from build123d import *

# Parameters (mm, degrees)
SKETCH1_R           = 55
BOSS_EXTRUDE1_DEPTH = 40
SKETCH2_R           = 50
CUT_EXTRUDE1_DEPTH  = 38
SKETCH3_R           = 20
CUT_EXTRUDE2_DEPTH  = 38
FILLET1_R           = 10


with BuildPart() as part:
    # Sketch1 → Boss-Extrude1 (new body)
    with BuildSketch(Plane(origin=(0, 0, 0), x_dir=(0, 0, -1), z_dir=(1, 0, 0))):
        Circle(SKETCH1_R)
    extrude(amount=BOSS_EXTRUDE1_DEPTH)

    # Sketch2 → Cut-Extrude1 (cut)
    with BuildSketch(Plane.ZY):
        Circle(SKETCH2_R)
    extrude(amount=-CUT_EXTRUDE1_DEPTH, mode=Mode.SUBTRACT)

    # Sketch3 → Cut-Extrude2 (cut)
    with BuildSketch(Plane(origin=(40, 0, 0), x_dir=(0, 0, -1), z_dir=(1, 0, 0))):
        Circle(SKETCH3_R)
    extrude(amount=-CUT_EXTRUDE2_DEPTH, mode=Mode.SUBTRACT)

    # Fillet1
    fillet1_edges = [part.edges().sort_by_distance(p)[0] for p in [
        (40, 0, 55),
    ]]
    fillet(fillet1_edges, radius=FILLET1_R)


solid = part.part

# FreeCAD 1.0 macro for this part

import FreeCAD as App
import Part
import Sketcher

V = App.Vector


def edges_at(feature, points):
    """Names of the edges that pass closest to the given points."""
    edges = feature.Shape.Edges
    near = lambda p: min(range(len(edges)), key=lambda i: edges[i].distToShape(Part.Vertex(*p))[0])
    return sorted({f"Edge{near(p) + 1}" for p in points})

doc = App.newDocument("Part")
body = doc.addObject("PartDesign::Body", "Body")

# Sketch on YZ plane
sketch1 = doc.addObject("Sketcher::SketchObject", "Sketch")
body.addObject(sketch1)
sketch1.AttachmentSupport = (doc.YZ_Plane, [""])
sketch1.MapMode = "FlatFace"
sketch1.addGeometry(Part.Circle(V(0, 0, 0), V(0, 0, 1), 55), False)
sketch1.addConstraint([
    Sketcher.Constraint("Coincident", 0, 3, -1, 1),
    Sketcher.Constraint("Diameter", 0, 110.0),
])
pad1 = doc.addObject("PartDesign::Pad", "Pad")
body.addObject(pad1)
pad1.Profile = sketch1
pad1.Length = 40

# Sketch on YZ plane
sketch2 = doc.addObject("Sketcher::SketchObject", "Sketch001")
body.addObject(sketch2)
sketch2.AttachmentSupport = (doc.YZ_Plane, [""])
sketch2.MapMode = "FlatFace"
sketch2.addGeometry(Part.Circle(V(0, 0, 0), V(0, 0, 1), 50), False)
sketch2.addConstraint([
    Sketcher.Constraint("Coincident", 0, 3, -1, 1),
    Sketcher.Constraint("Diameter", 0, 100.0),
])
pocket1 = doc.addObject("PartDesign::Pocket", "Pocket")
body.addObject(pocket1)
pocket1.Profile = sketch2
pocket1.Length = 38
pocket1.Reversed = True

# Sketch on YZ plane
sketch3 = doc.addObject("Sketcher::SketchObject", "Sketch002")
body.addObject(sketch3)
sketch3.AttachmentSupport = (doc.YZ_Plane, [""])
sketch3.MapMode = "FlatFace"
sketch3.AttachmentOffset = App.Placement(V(0, 0, 40), App.Rotation())
sketch3.addGeometry(Part.Circle(V(0, 0, 0), V(0, 0, 1), 20), False)
sketch3.addConstraint([
    Sketcher.Constraint("Coincident", 0, 3, -1, 1),
    Sketcher.Constraint("Diameter", 0, 40.0),
])
pocket2 = doc.addObject("PartDesign::Pocket", "Pocket001")
body.addObject(pocket2)
pocket2.Profile = sketch3
pocket2.Length = 38
doc.recompute()

fillet = doc.addObject("PartDesign::Fillet", "Fillet")
body.addObject(fillet)
fillet.Base = (pocket2, edges_at(pocket2, [(40, 0, 55)]))
fillet.Radius = 10

doc.recompute()
